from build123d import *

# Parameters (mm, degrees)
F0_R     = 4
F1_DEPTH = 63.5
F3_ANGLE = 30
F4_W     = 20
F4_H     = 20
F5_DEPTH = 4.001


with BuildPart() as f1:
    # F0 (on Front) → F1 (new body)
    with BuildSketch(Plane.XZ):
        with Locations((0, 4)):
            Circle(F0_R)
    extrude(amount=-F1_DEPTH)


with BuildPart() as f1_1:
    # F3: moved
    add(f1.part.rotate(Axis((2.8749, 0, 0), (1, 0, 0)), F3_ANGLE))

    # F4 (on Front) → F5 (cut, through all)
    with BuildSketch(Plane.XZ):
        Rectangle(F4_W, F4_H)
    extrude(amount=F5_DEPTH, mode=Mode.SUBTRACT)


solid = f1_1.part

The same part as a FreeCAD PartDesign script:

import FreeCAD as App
import Part
import Sketcher

V = App.Vector

doc = App.newDocument("Part")
body = doc.addObject("PartDesign::Body", "Body")

# Sketch on XZ plane
sketch1 = body.newObject("Sketcher::SketchObject", "Sketch")
sketch1.AttachmentSupport = (doc.getObject("XZ_Plane"), [""])
sketch1.MapMode = "FlatFace"
sketch1.addGeometry(Part.Circle(V(0, 4, 0), V(0, 0, 1), 4), False)
sketch1.addConstraint([
    Sketcher.Constraint("PointOnObject", 0, 3, -2),
    Sketcher.Constraint("Diameter", 0, 8.0),
    Sketcher.Constraint("DistanceY", -1, 1, 0, 3, 4.0),
])
pad1 = body.newObject("PartDesign::Pad", "Pad")
pad1.Profile = sketch1
pad1.Length = 63.5
pad1.Reversed = True
body2 = doc.addObject("PartDesign::Body", "Body001")
doc.recompute()

body.Placement = App.Placement(V(0, 0, 0), App.Rotation(V(1, 0, 0), 30))
boolean = body2.newObject("PartDesign::Boolean", "Boolean")
boolean.Type = "Fuse"
boolean.addObjects([body])

# Sketch on XZ plane
sketch2 = body2.newObject("Sketcher::SketchObject", "Sketch001")
sketch2.AttachmentSupport = (doc.getObject("XZ_Plane001"), [""])
sketch2.MapMode = "FlatFace"
sketch2.addGeometry([
    Part.LineSegment(V(-10, 10, 0), V(-10, -10, 0)),
    Part.LineSegment(V(-10, -10, 0), V(10, -10, 0)),
    Part.LineSegment(V(10, -10, 0), V(10, 10, 0)),
    Part.LineSegment(V(10, 10, 0), V(-10, 10, 0)),
], False)
sketch2.addConstraint([
    Sketcher.Constraint("Coincident", 0, 2, 1, 1),
    Sketcher.Constraint("Coincident", 1, 2, 2, 1),
    Sketcher.Constraint("Coincident", 2, 2, 3, 1),
    Sketcher.Constraint("Coincident", 3, 2, 0, 1),
    Sketcher.Constraint("Vertical", 0),
    Sketcher.Constraint("Horizontal", 1),
    Sketcher.Constraint("Vertical", 2),
    Sketcher.Constraint("Horizontal", 3),
    Sketcher.Constraint("Symmetric", 0, 2, 2, 2, -1, 1),
    Sketcher.Constraint("Equal", 3, 0),
    Sketcher.Constraint("DistanceX", 1, 1, 1, 2, 20.0),
])
pocket1 = body2.newObject("PartDesign::Pocket", "Pocket")
pocket1.Profile = sketch2
pocket1.Type = "ThroughAll"
pocket1.Reversed = True

doc.recompute()
